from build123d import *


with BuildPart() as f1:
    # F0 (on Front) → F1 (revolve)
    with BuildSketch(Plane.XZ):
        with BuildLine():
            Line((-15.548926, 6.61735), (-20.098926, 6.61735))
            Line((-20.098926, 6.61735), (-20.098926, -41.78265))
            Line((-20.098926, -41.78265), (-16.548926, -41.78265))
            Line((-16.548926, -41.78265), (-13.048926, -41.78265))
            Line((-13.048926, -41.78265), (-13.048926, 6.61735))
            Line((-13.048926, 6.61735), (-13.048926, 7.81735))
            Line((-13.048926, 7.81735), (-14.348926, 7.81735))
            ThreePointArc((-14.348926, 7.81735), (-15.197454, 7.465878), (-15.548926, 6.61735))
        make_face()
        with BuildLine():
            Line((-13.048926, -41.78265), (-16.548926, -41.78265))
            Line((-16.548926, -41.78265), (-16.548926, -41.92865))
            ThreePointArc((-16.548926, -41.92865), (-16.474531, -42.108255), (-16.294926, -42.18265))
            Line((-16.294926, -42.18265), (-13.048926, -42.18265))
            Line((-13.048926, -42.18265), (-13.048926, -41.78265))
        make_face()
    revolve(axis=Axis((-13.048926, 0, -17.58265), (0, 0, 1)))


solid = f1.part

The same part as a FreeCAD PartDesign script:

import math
import FreeCAD as App
import Part
import Sketcher

V = App.Vector
Q = App.Units.Quantity

doc = App.newDocument("Part")
body = doc.addObject("PartDesign::Body", "Body")

# Sketch on XZ plane
sketch1 = doc.addObject("Sketcher::SketchObject", "Sketch")
body.addObject(sketch1)
sketch1.AttachmentSupport = (doc.XZ_Plane, [""])
sketch1.MapMode = "FlatFace"
sketch1.addGeometry([
    Part.LineSegment(V(-15.55, 6.62, 0), V(-20.1, 6.62, 0)),  # 0
    Part.LineSegment(V(-20.1, 6.62, 0), V(-20.1, -41.78, 0)),  # 1
    Part.LineSegment(V(-20.1, -41.78, 0), V(-16.55, -41.78, 0)),  # 2
    Part.LineSegment(V(-16.55, -41.78, 0), V(-16.55, -41.93, 0)),  # 3
    Part.ArcOfCircle(Part.Circle(V(-16.29, -41.93, 0), V(0, 0, 1), 0.25), math.radians(-180), math.radians(-90)),  # 4
    Part.LineSegment(V(-16.29, -42.18, 0), V(-13.05, -42.18, 0)),  # 5
    Part.LineSegment(V(-13.05, -42.18, 0), V(-13.05, 7.82, 0)),  # 6
    Part.LineSegment(V(-13.05, 7.82, 0), V(-14.35, 7.82, 0)),  # 7
    Part.ArcOfCircle(Part.Circle(V(-14.35, 6.62, 0), V(0, 0, 1), 1.2), math.radians(90), math.radians(180)),  # 8
], False)
sketch1.addGeometry(Part.LineSegment(V(-13.05, -42.18, 0), V(-13.05, 7.82, 0)), True)  # axis
sketch1.addConstraint([
    Sketcher.Constraint("Coincident", 0, 2, 1, 1),
    Sketcher.Constraint("Coincident", 1, 2, 2, 1),
    Sketcher.Constraint("Coincident", 2, 2, 3, 1),
    Sketcher.Constraint("Tangent", 3, 2, 4, 1),
    Sketcher.Constraint("Tangent", 4, 2, 5, 1),
    Sketcher.Constraint("Coincident", 5, 2, 6, 1),
    Sketcher.Constraint("Coincident", 6, 2, 7, 1),
    Sketcher.Constraint("Tangent", 7, 2, 8, 1),
    Sketcher.Constraint("Coincident", 8, 2, 0, 1),
    Sketcher.Constraint("Horizontal", 0),
    Sketcher.Constraint("Vertical", 1),
    Sketcher.Constraint("Horizontal", 2),
    Sketcher.Constraint("Vertical", 3),
    Sketcher.Constraint("Horizontal", 5),
    Sketcher.Constraint("Vertical", 6),
    Sketcher.Constraint("Horizontal", 7),
    Sketcher.Constraint("Vertical", 9),
    Sketcher.Constraint("Coincident", 9, 1, 5, 2),
    Sketcher.Constraint("Horizontal", 8, 3, 0, 2),
    Sketcher.Constraint("Horizontal", 7, 2, 9, 2),
    Sketcher.Constraint("Radius", 8, Q("1.2 mm")),
    Sketcher.Constraint("DistanceY", 6, 1, 6, 2, Q("50 mm")),
    Sketcher.Constraint("DistanceX", 7, 2, 7, 1, Q("1.3 mm")),
    Sketcher.Constraint("DistanceY", 1, 2, 1, 1, Q("48.4 mm")),
    Sketcher.Constraint("Radius", 4, Q("0.254 mm")),
    Sketcher.Constraint("DistanceX", 2, 2, 8, 2, Q("1 mm")),
    Sketcher.Constraint("DistanceX", 0, 2, 0, 1, Q("4.55 mm")),
    Sketcher.Constraint("DistanceY", 4, 3, -1, 1, Q("41.92865 mm")),
    Sketcher.Constraint("DistanceX", 4, 3, -1, 1, Q("16.294926 mm")),
])
revolution = doc.addObject("PartDesign::Revolution", "Revolution")
body.addObject(revolution)
revolution.Profile = sketch1
revolution.ReferenceAxis = (sketch1, ["Axis0"])
revolution.Angle = 360

doc.recompute()
